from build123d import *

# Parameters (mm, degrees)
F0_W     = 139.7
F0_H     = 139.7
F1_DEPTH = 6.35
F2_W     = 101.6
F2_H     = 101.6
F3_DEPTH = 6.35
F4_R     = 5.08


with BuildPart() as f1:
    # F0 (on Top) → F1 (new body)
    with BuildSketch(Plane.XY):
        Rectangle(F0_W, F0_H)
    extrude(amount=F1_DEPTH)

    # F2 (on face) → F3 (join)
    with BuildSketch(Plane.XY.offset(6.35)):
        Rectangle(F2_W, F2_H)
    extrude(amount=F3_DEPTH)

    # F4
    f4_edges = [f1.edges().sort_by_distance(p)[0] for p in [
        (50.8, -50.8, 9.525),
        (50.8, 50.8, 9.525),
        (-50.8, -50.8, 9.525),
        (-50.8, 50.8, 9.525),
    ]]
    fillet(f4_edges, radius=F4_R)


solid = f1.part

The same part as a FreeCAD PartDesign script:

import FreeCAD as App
import Part
import Sketcher
Q = App.Units.Quantity


def edges_at(feature, points):
    """Names of the edges that pass closest to the given points."""
    edges = feature.Shape.Edges
    near = lambda p: min(range(len(edges)), key=lambda i: edges[i].distToShape(Part.Vertex(*p))[0])
    return sorted({f"Edge{near(p) + 1}" for p in points})

doc = App.newDocument("Part")
body = doc.addObject("PartDesign::Body", "Body")

# Sketch on XY plane
sketch1 = doc.addObject("Sketcher::SketchObject", "Sketch")
body.addObject(sketch1)
sketch1.AttachmentSupport = (doc.XY_Plane, [""])
sketch1.MapMode = "FlatFace"
sketch1.addGeometry([
    Part.LineSegment(App.Vector(-70, 70, 0), App.Vector(-70, -70, 0)),
    Part.LineSegment(App.Vector(-70, -70, 0), App.Vector(70, -70, 0)),
    Part.LineSegment(App.Vector(70, -70, 0), App.Vector(70, 70, 0)),
    Part.LineSegment(App.Vector(70, 70, 0), App.Vector(-70, 70, 0)),
], False)
sketch1.addConstraint([
    Sketcher.Constraint("Coincident", 0, 2, 1, 1),
    Sketcher.Constraint("Coincident", 1, 2, 2, 1),
    Sketcher.Constraint("Coincident", 2, 2, 3, 1),
    Sketcher.Constraint("Coincident", 3, 2, 0, 1),
    Sketcher.Constraint("Vertical", 0),
    Sketcher.Constraint("Horizontal", 1),
    Sketcher.Constraint("Vertical", 2),
    Sketcher.Constraint("Horizontal", 3),
    Sketcher.Constraint("Symmetric", 0, 2, 2, 2, -1, 1),
    Sketcher.Constraint("Equal", 3, 0),
    Sketcher.Constraint("DistanceX", 1, 1, 1, 2, Q("5.5 in")),
])
pad1 = doc.addObject("PartDesign::Pad", "Pad")
body.addObject(pad1)
pad1.Profile = sketch1
pad1.Length = Q("0.25 in")

# Sketch on XY plane
sketch2 = doc.addObject("Sketcher::SketchObject", "Sketch001")
body.addObject(sketch2)
sketch2.AttachmentSupport = (doc.XY_Plane, [""])
sketch2.MapMode = "FlatFace"
sketch2.AttachmentOffset = App.Placement(App.Vector(0, 0, 0.25 * 25.4), App.Rotation())
sketch2.addGeometry([
    Part.LineSegment(App.Vector(-51, 51, 0), App.Vector(-51, -51, 0)),
    Part.LineSegment(App.Vector(-51, -51, 0), App.Vector(51, -51, 0)),
    Part.LineSegment(App.Vector(51, -51, 0), App.Vector(51, 51, 0)),
    Part.LineSegment(App.Vector(51, 51, 0), App.Vector(-51, 51, 0)),
], False)
sketch2.addConstraint([
    Sketcher.Constraint("Coincident", 0, 2, 1, 1),
    Sketcher.Constraint("Coincident", 1, 2, 2, 1),
    Sketcher.Constraint("Coincident", 2, 2, 3, 1),
    Sketcher.Constraint("Coincident", 3, 2, 0, 1),
    Sketcher.Constraint("Vertical", 0),
    Sketcher.Constraint("Horizontal", 1),
    Sketcher.Constraint("Vertical", 2),
    Sketcher.Constraint("Horizontal", 3),
    Sketcher.Constraint("Symmetric", 0, 2, 2, 2, -1, 1),
    Sketcher.Constraint("Equal", 3, 0),
    Sketcher.Constraint("DistanceX", 1, 1, 1, 2, Q("4 in")),
])
pad2 = doc.addObject("PartDesign::Pad", "Pad001")
body.addObject(pad2)
pad2.Profile = sketch2
pad2.Length = Q("0.25 in")
doc.recompute()

fillet = doc.addObject("PartDesign::Fillet", "Fillet")
body.addObject(fillet)
fillet.Base = (pad2, edges_at(pad2, [
    (50.8, -50.8, 9.525),
    (50.8, 50.8, 9.525),
    (-50.8, -50.8, 9.525),
    (-50.8, 50.8, 9.525),
]))
fillet.Radius = Q("0.2 in")

doc.recompute()
